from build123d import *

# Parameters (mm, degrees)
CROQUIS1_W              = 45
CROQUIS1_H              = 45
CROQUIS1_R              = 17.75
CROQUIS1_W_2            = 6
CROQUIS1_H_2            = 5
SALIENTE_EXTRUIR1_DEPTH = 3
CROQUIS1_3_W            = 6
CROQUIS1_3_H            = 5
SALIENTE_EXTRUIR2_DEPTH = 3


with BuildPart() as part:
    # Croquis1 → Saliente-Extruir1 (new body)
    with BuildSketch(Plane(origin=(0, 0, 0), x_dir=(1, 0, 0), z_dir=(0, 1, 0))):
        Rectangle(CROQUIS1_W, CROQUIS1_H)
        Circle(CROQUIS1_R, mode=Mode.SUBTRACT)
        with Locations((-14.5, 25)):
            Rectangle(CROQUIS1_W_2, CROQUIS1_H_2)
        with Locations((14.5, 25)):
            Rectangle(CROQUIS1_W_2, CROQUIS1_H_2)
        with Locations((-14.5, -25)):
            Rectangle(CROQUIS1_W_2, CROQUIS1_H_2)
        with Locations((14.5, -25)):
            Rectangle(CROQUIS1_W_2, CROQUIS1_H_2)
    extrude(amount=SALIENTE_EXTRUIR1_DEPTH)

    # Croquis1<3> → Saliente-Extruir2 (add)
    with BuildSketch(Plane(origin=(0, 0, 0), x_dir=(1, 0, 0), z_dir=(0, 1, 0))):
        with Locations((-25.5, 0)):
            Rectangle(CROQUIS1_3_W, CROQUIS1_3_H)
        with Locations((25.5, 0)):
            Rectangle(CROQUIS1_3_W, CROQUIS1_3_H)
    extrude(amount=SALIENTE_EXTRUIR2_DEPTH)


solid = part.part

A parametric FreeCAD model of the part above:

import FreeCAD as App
import Part
import Sketcher

V = App.Vector


def add_polygon(sketch, points):
    """Adds a closed chain of lines whose ends are joined by coincident constraints."""
    first, n = sketch.GeometryCount, len(points)
    for a, b in zip(points, points[1:] + points[:1]):
        sketch.addGeometry(Part.LineSegment(App.Vector(*a, 0), App.Vector(*b, 0)), False)
    for i in range(n):
        sketch.addConstraint(Sketcher.Constraint("Coincident", first + i, 2, first + (i + 1) % n, 1))

doc = App.newDocument("Part")
body = doc.addObject("PartDesign::Body", "Body")

# Sketch on XZ plane
sketch1 = body.newObject("Sketcher::SketchObject", "Sketch")
sketch1.AttachmentSupport = (doc.getObject("XZ_Plane"), [""])
sketch1.MapMode = "FlatFace"
add_polygon(sketch1, [(-22.5, -22.5), (-22.5, 22.5), (-17.5, 22.5), (-17.5, 27.5), (-11.5, 27.5), (-11.5, 22.5), (11.5, 22.5), (11.5, 27.5), (17.5, 27.5), (17.5, 22.5), (22.5, 22.5), (22.5, -22.5), (17.5, -22.5), (17.5, -27.5), (11.5, -27.5), (11.5, -22.5), (-11.5, -22.5), (-11.5, -27.5), (-17.5, -27.5), (-17.5, -22.5)])  # lines 0-19
sketch1.addGeometry(Part.Circle(V(0, 0, 0), V(0, 0, 1), 17.75), False)  # 20
sketch1.addConstraint([
    Sketcher.Constraint("Vertical", 0),
    Sketcher.Constraint("Horizontal", 1),
    Sketcher.Constraint("Vertical", 2),
    Sketcher.Constraint("Horizontal", 3),
    Sketcher.Constraint("Vertical", 4),
    Sketcher.Constraint("Horizontal", 5),
    Sketcher.Constraint("Vertical", 6),
    Sketcher.Constraint("Horizontal", 7),
    Sketcher.Constraint("Vertical", 8),
    Sketcher.Constraint("Horizontal", 9),
    Sketcher.Constraint("Vertical", 10),
    Sketcher.Constraint("Horizontal", 11),
    Sketcher.Constraint("Vertical", 12),
    Sketcher.Constraint("Horizontal", 13),
    Sketcher.Constraint("Vertical", 14),
    Sketcher.Constraint("Horizontal", 15),
    Sketcher.Constraint("Vertical", 16),
    Sketcher.Constraint("Horizontal", 17),
    Sketcher.Constraint("Vertical", 18),
    Sketcher.Constraint("Horizontal", 19),
    Sketcher.Constraint("Coincident", 20, 3, -1, 1),
    Sketcher.Constraint("Symmetric", 0, 2, 10, 2, -1, 1),
    Sketcher.Constraint("Symmetric", 2, 2, 12, 2, -1, 1),
    Sketcher.Constraint("Symmetric", 4, 2, 14, 2, -1, 1),
    Sketcher.Constraint("Symmetric", 6, 2, 16, 2, -1, 1),
    Sketcher.Constraint("Symmetric", 8, 2, 18, 2, -1, 1),
    Sketcher.Constraint("Symmetric", 3, 2, 6, 2, -2),
    Sketcher.Constraint("Symmetric", 1, 2, 8, 2, -2),
    Sketcher.Constraint("Horizontal", 1, 2, 4, 2),
    Sketcher.Constraint("Equal", 19, 2),
    Sketcher.Constraint("Diameter", 20, 35.5),
    Sketcher.Constraint("DistanceX", 1, 1, 1, 2, 5.0),
    Sketcher.Constraint("DistanceX", 3, 1, 3, 2, 6.0),
    Sketcher.Constraint("DistanceX", 5, 1, 5, 2, 23.0),
    Sketcher.Constraint("DistanceY", 0, 1, 0, 2, 45.0),
])
pad1 = body.newObject("PartDesign::Pad", "Pad")
pad1.Profile = sketch1
pad1.Length = 3
pad1.Reversed = True

# Sketch on XZ plane
sketch2 = body.newObject("Sketcher::SketchObject", "Sketch001")
sketch2.AttachmentSupport = (doc.getObject("XZ_Plane"), [""])
sketch2.MapMode = "FlatFace"
add_polygon(sketch2, [(-28.5, -2.5), (-28.5, 2.5), (-22.5, 2.5), (-22.5, -2.5)])  # lines 0-3
add_polygon(sketch2, [(22.5, -2.5), (22.5, 2.5), (28.5, 2.5), (28.5, -2.5)])  # lines 4-7
sketch2.addConstraint([
    Sketcher.Constraint("Vertical", 0),
    Sketcher.Constraint("Horizontal", 1),
    Sketcher.Constraint("Vertical", 2),
    Sketcher.Constraint("Horizontal", 3),
    Sketcher.Constraint("Vertical", 4),
    Sketcher.Constraint("Horizontal", 5),
    Sketcher.Constraint("Vertical", 6),
    Sketcher.Constraint("Horizontal", 7),
    Sketcher.Constraint("Symmetric", 2, 2, 4, 2, -1, 1),
    Sketcher.Constraint("Symmetric", 0, 2, 6, 2, -1, 1),
    Sketcher.Constraint("Horizontal", 1, 2, 4, 2),
    Sketcher.Constraint("DistanceX", 1, 1, 1, 2, 6.0),
    Sketcher.Constraint("DistanceY", 0, 1, 0, 2, 5.0),
    Sketcher.Constraint("DistanceX", 1, 2, 4, 2, 45.0),
])
pad2 = body.newObject("PartDesign::Pad", "Pad001")
pad2.Profile = sketch2
pad2.Length = 3
pad2.Reversed = True

doc.recompute()
